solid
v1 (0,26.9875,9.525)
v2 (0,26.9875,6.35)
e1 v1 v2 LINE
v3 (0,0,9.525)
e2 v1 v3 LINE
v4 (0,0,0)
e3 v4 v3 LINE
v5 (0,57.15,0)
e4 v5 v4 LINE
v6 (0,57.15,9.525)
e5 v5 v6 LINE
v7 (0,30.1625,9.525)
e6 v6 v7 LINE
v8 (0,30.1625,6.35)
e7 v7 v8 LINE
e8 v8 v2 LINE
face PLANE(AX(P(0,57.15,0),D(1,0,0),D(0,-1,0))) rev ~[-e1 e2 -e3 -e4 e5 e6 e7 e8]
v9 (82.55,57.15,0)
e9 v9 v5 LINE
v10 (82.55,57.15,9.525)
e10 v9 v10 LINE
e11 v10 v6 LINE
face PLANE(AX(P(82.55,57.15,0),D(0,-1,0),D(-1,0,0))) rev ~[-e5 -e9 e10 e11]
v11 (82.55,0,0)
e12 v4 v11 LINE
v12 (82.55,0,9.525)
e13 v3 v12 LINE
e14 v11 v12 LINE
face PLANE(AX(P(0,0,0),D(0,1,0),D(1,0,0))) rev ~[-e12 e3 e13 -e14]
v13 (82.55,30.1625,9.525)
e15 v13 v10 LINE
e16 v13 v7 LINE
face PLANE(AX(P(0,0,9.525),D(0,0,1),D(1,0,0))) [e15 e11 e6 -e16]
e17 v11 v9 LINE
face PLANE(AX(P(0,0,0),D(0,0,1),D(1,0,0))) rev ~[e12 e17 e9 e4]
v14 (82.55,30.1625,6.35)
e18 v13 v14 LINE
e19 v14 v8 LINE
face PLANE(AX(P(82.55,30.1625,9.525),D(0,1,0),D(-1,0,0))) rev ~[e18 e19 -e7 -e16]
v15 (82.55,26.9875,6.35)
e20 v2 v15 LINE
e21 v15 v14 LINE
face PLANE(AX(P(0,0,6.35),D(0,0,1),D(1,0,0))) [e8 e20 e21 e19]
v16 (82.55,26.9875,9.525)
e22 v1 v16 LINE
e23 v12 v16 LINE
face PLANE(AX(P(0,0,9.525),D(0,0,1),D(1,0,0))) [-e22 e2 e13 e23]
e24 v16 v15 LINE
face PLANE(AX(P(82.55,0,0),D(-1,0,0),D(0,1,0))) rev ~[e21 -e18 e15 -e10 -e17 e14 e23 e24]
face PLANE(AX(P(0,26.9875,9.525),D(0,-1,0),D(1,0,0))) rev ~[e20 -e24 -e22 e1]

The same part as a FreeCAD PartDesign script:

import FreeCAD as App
import Part
import Sketcher

V = App.Vector
Q = App.Units.Quantity

doc = App.newDocument("Part")
body = doc.addObject("PartDesign::Body", "Body")

sketch1 = body.newObject("Sketcher::SketchObject", "Sketch")
sketch1.AttachmentSupport = (doc.getObject("XY_Plane"), [""])
sketch1.MapMode = "FlatFace"
sketch1.addGeometry(Part.LineSegment(V(0, 57, 0), V(0, 0, 0)), False)
sketch1.addGeometry(Part.LineSegment(V(0, 0, 0), V(83, 0, 0)), False)
sketch1.addGeometry(Part.LineSegment(V(83, 0, 0), V(83, 57, 0)), False)
sketch1.addGeometry(Part.LineSegment(V(83, 57, 0), V(0, 57, 0)), False)
sketch1.addConstraint(Sketcher.Constraint("Coincident", 0, 2, 1, 1))
sketch1.addConstraint(Sketcher.Constraint("Coincident", 1, 2, 2, 1))
sketch1.addConstraint(Sketcher.Constraint("Coincident", 2, 2, 3, 1))
sketch1.addConstraint(Sketcher.Constraint("Coincident", 3, 2, 0, 1))
sketch1.addConstraint(Sketcher.Constraint("Vertical", 0))
sketch1.addConstraint(Sketcher.Constraint("Horizontal", 1))
sketch1.addConstraint(Sketcher.Constraint("Vertical", 2))
sketch1.addConstraint(Sketcher.Constraint("Horizontal", 3))
sketch1.addConstraint(Sketcher.Constraint("Coincident", 0, 2, -1, 1))
sketch1.addConstraint(Sketcher.Constraint("DistanceX", 1, 1, 1, 2, Q("3.25 in")))
sketch1.addConstraint(Sketcher.Constraint("DistanceY", 0, 2, 0, 1, Q("2.25 in")))
pad1 = body.newObject("PartDesign::Pad", "Pad")
pad1.Profile = sketch1
pad1.Length = Q("0.375 in")

sketch2 = body.newObject("Sketcher::SketchObject", "Sketch001")
sketch2.AttachmentSupport = (doc.getObject("XY_Plane"), [""])
sketch2.MapMode = "FlatFace"
sketch2.AttachmentOffset = App.Placement(V(0, 0, 0.375 * 25.4), App.Rotation())
sketch2.addGeometry(Part.LineSegment(V(82.5, 30.2, 0), V(0, 30.2, 0)), False)
sketch2.addGeometry(Part.LineSegment(V(0, 30.2, 0), V(0, 27, 0)), False)
sketch2.addGeometry(Part.LineSegment(V(0, 27, 0), V(82.5, 27, 0)), False)
sketch2.addGeometry(Part.LineSegment(V(82.5, 27, 0), V(82.5, 30.2, 0)), False)
sketch2.addConstraint(Sketcher.Constraint("Coincident", 0, 2, 1, 1))
sketch2.addConstraint(Sketcher.Constraint("Coincident", 1, 2, 2, 1))
sketch2.addConstraint(Sketcher.Constraint("Coincident", 2, 2, 3, 1))
sketch2.addConstraint(Sketcher.Constraint("Coincident", 3, 2, 0, 1))
sketch2.addConstraint(Sketcher.Constraint("Horizontal", 0))
sketch2.addConstraint(Sketcher.Constraint("Vertical", 1))
sketch2.addConstraint(Sketcher.Constraint("Horizontal", 2))
sketch2.addConstraint(Sketcher.Constraint("Vertical", 3))
sketch2.addConstraint(Sketcher.Constraint("PointOnObject", 0, 2, -2))
sketch2.addConstraint(Sketcher.Constraint("DistanceX", 0, 2, 0, 1, Q("3.25 in")))
sketch2.addConstraint(Sketcher.Constraint("DistanceY", 1, 2, 1, 1, Q("0.125 in")))
sketch2.addConstraint(Sketcher.Constraint("DistanceY", -1, 1, 0, 2, Q("1.1875 in")))
pocket1 = body.newObject("PartDesign::Pocket", "Pocket")
pocket1.Profile = sketch2
pocket1.Length = Q("0.125 in")

doc.recompute()
